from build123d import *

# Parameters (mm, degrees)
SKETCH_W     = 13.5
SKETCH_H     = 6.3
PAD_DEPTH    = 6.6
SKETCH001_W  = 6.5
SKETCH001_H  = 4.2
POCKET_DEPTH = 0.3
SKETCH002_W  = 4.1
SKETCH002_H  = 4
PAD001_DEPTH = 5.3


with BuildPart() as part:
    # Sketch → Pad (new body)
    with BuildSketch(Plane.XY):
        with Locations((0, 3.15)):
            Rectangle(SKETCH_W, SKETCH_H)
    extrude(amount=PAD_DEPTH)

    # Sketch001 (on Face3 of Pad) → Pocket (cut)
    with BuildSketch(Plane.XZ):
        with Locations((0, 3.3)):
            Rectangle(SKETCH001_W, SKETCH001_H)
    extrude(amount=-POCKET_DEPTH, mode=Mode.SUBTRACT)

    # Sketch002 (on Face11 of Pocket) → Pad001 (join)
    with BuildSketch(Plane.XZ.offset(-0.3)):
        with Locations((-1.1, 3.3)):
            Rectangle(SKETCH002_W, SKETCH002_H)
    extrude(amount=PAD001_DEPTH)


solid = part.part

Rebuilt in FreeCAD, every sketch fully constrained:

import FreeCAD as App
import Part
import Sketcher
Q = App.Units.Quantity


def add_polygon(sketch, points):
    """Adds a closed chain of lines whose ends are joined by coincident constraints."""
    first, n = sketch.GeometryCount, len(points)
    for a, b in zip(points, points[1:] + points[:1]):
        sketch.addGeometry(Part.LineSegment(App.Vector(*a, 0), App.Vector(*b, 0)), False)
    for i in range(n):
        sketch.addConstraint(Sketcher.Constraint("Coincident", first + i, 2, first + (i + 1) % n, 1))

doc = App.newDocument("Part")
params = doc.addObject("Spreadsheet::Sheet", "Params")
for row, (alias, value) in enumerate([
    ("sketch1_width", "13.5 mm"),
    ("sketch1_height", "6.3 mm"),
    ("pad1_length", "6.6 mm"),
    ("sketch2_width", "6.5 mm"),
    ("sketch2_height", "4.2 mm"),
    ("pocket1_length", "0.3 mm"),
    ("sketch3_height", "4 mm"),
    ("sketch3_width", "4.1 mm"),
    ("pad2_length", "5.3 mm"),
], start=1):
    params.set(f"A{row}", alias)
    params.set(f"B{row}", "=" + value)
    params.setAlias(f"B{row}", alias)

body = doc.addObject("PartDesign::Body", "Body")

# Sketch on XY plane
sketch1 = body.newObject("Sketcher::SketchObject", "Sketch")
sketch1.AttachmentSupport = (doc.getObject("XY_Plane"), [""])
sketch1.MapMode = "FlatFace"
add_polygon(sketch1, [(-6.75, 6.3), (-6.75, 0), (6.75, 0), (6.75, 6.3)])  # lines 0-3
sketch1.addConstraint(Sketcher.Constraint("Vertical", 0))
sketch1.addConstraint(Sketcher.Constraint("Horizontal", 1))
sketch1.addConstraint(Sketcher.Constraint("Vertical", 2))
sketch1.addConstraint(Sketcher.Constraint("Horizontal", 3))
sketch1.addConstraint(Sketcher.Constraint("Symmetric", 0, 2, 1, 2, -1, 1))
sketch1.addConstraint(Sketcher.Constraint("DistanceX", 1, 1, 1, 2, Q("13.5 mm")))
sketch1.addConstraint(Sketcher.Constraint("DistanceY", 0, 2, 0, 1, Q("6.3 mm")))
sketch1.setExpression("Constraints[9]", "Params.sketch1_width")
sketch1.setExpression("Constraints[10]", "Params.sketch1_height")
pad1 = body.newObject("PartDesign::Pad", "Pad")
pad1.Profile = sketch1
pad1.setExpression("Length", "Params.pad1_length")

# Sketch on XZ plane
sketch2 = body.newObject("Sketcher::SketchObject", "Sketch001")
sketch2.AttachmentSupport = (doc.getObject("XZ_Plane"), [""])
sketch2.MapMode = "FlatFace"
add_polygon(sketch2, [(-3.25, 5.4), (-3.25, 1.2), (3.25, 1.2), (3.25, 5.4)])  # lines 0-3
sketch2.addConstraint(Sketcher.Constraint("Vertical", 0))
sketch2.addConstraint(Sketcher.Constraint("Horizontal", 1))
sketch2.addConstraint(Sketcher.Constraint("Vertical", 2))
sketch2.addConstraint(Sketcher.Constraint("Horizontal", 3))
sketch2.addConstraint(Sketcher.Constraint("DistanceX", 1, 1, 1, 2, Q("6.5 mm")))
sketch2.addConstraint(Sketcher.Constraint("DistanceY", 0, 2, 0, 1, Q("4.2 mm")))
sketch2.addConstraint(Sketcher.Constraint("DistanceY", -1, 1, 0, 2, Q("1.2 mm")))
sketch2.addConstraint(Sketcher.Constraint("DistanceX", 0, 2, -1, 1, Q("3.25 mm")))
sketch2.setExpression("Constraints[8]", "Params.sketch2_width")
sketch2.setExpression("Constraints[9]", "Params.sketch2_height")
pocket1 = body.newObject("PartDesign::Pocket", "Pocket")
pocket1.Profile = sketch2
pocket1.setExpression("Length", "Params.pocket1_length")

# Sketch on XZ plane
sketch3 = body.newObject("Sketcher::SketchObject", "Sketch002")
sketch3.AttachmentSupport = (doc.getObject("XZ_Plane"), [""])
sketch3.MapMode = "FlatFace"
sketch3.AttachmentOffset = App.Placement(App.Vector(0, 0, -0.3), App.Rotation())
add_polygon(sketch3, [(-3.15, 5.3), (-3.15, 1.3), (0.95, 1.3), (0.95, 5.3)])  # lines 0-3
sketch3.addConstraint(Sketcher.Constraint("Vertical", 0))
sketch3.addConstraint(Sketcher.Constraint("Horizontal", 1))
sketch3.addConstraint(Sketcher.Constraint("Vertical", 2))
sketch3.addConstraint(Sketcher.Constraint("Horizontal", 3))
sketch3.addConstraint(Sketcher.Constraint("DistanceY", 0, 2, 0, 1, Q("4 mm")))
sketch3.addConstraint(Sketcher.Constraint("DistanceX", 1, 1, 1, 2, Q("4.1 mm")))
sketch3.addConstraint(Sketcher.Constraint("DistanceY", -1, 1, 0, 2, Q("1.3 mm")))
sketch3.addConstraint(Sketcher.Constraint("DistanceX", 0, 2, -1, 1, Q("3.15 mm")))
sketch3.setExpression("Constraints[8]", "Params.sketch3_height")
sketch3.setExpression("Constraints[9]", "Params.sketch3_width")
pad2 = body.newObject("PartDesign::Pad", "Pad001")
pad2.Profile = sketch3
pad2.setExpression("Length", "Params.pad2_length")

doc.recompute()
